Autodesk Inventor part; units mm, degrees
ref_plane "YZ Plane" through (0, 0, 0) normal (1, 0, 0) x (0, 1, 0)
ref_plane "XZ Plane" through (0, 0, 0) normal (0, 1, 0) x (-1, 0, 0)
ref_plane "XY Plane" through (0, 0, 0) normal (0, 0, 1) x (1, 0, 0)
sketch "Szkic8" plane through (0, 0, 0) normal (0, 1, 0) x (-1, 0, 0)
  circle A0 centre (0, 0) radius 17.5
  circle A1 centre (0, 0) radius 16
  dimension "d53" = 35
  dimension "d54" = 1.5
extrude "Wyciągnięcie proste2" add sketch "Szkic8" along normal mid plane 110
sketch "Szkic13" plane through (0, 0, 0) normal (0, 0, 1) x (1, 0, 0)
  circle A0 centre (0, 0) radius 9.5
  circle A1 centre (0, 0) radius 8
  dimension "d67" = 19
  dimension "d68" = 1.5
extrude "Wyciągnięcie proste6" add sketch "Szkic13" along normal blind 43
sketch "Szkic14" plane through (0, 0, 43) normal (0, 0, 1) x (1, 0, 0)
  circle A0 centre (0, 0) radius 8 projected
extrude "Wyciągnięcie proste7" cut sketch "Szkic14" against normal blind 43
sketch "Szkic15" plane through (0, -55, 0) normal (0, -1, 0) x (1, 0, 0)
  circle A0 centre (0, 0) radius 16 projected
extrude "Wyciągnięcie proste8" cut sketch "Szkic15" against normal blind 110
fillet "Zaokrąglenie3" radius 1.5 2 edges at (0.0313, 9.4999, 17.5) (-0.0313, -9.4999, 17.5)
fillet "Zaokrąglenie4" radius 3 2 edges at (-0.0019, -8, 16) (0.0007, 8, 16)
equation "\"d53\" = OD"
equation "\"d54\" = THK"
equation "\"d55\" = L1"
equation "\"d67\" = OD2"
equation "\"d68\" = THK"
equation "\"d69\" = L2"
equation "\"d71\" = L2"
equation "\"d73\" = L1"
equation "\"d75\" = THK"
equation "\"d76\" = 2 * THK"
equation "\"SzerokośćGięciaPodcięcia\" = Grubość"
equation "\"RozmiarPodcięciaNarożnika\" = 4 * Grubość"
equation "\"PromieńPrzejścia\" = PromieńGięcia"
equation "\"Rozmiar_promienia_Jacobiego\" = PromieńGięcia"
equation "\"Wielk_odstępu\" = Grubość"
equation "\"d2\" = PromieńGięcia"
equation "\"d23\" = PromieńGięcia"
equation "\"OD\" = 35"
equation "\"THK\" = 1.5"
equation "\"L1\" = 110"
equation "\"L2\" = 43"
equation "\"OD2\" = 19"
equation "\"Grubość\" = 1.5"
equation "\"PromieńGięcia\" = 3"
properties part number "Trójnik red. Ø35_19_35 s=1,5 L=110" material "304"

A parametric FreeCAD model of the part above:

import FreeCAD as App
import Part
import Sketcher

V = App.Vector
Q = App.Units.Quantity


def edges_at(feature, points):
    """Names of the edges that pass closest to the given points."""
    edges = feature.Shape.Edges
    near = lambda p: min(range(len(edges)), key=lambda i: edges[i].distToShape(Part.Vertex(*p))[0])
    return sorted({f"Edge{near(p) + 1}" for p in points})

doc = App.newDocument("Part")
params = doc.addObject("Spreadsheet::Sheet", "Params")
for row, (alias, value) in enumerate([
    ("sketch1_diameter", "35 mm"),
    ("sketch1_diameter2", "32 mm"),
    ("pad1_length", "110 mm"),
    ("sketch2_diameter", "19 mm"),
    ("sketch2_diameter2", "16 mm"),
    ("pad2_length", "43 mm"),
    ("sketch3_diameter", "16 mm"),
    ("pocket1_length", "43 mm"),
    ("sketch4_diameter", "32 mm"),
    ("pocket2_length", "110 mm"),
    ("fillet_radius", "1.5 mm"),
    ("fillet2_radius", "3 mm"),
], start=1):
    params.set(f"A{row}", alias)
    params.set(f"B{row}", "=" + value)
    params.setAlias(f"B{row}", alias)

body = doc.addObject("PartDesign::Body", "Body")

sketch1 = body.newObject("Sketcher::SketchObject", "Sketch")
sketch1.AttachmentSupport = (doc.getObject("XZ_Plane"), [""])
sketch1.MapMode = "FlatFace"
sketch1.addGeometry([
    Part.Circle(V(0, 0, 0), V(0, 0, 1), 18),
    Part.Circle(V(0, 0, 0), V(0, 0, 1), 16),
], False)
sketch1.addConstraint([
    Sketcher.Constraint("Coincident", 0, 3, -1, 1),
    Sketcher.Constraint("Coincident", 1, 3, -1, 1),
    Sketcher.Constraint("Diameter", 0, Q("35 mm")),
    Sketcher.Constraint("Diameter", 1, Q("32 mm")),
])
sketch1.setExpression("Constraints[2]", "Params.sketch1_diameter")
sketch1.setExpression("Constraints[3]", "Params.sketch1_diameter2")
pad1 = body.newObject("PartDesign::Pad", "Pad")
pad1.Profile = sketch1
pad1.setExpression("Length", "Params.pad1_length")
pad1.Midplane = True

sketch2 = body.newObject("Sketcher::SketchObject", "Sketch001")
sketch2.AttachmentSupport = (doc.getObject("XY_Plane"), [""])
sketch2.MapMode = "FlatFace"
sketch2.addGeometry([
    Part.Circle(V(0, 0, 0), V(0, 0, 1), 10),
    Part.Circle(V(0, 0, 0), V(0, 0, 1), 8),
], False)
sketch2.addConstraint([
    Sketcher.Constraint("Coincident", 0, 3, -1, 1),
    Sketcher.Constraint("Coincident", 1, 3, -1, 1),
    Sketcher.Constraint("Diameter", 0, Q("19 mm")),
    Sketcher.Constraint("Diameter", 1, Q("16 mm")),
])
sketch2.setExpression("Constraints[2]", "Params.sketch2_diameter")
sketch2.setExpression("Constraints[3]", "Params.sketch2_diameter2")
pad2 = body.newObject("PartDesign::Pad", "Pad001")
pad2.Profile = sketch2
pad2.setExpression("Length", "Params.pad2_length")

sketch3 = body.newObject("Sketcher::SketchObject", "Sketch002")
sketch3.AttachmentSupport = (doc.getObject("XY_Plane"), [""])
sketch3.MapMode = "FlatFace"
sketch3.AttachmentOffset = App.Placement(V(0, 0, 43), App.Rotation())
sketch3.addGeometry(Part.Circle(V(0, 0, 0), V(0, 0, 1), 8), False)
sketch3.addConstraint([
    Sketcher.Constraint("Coincident", 0, 3, -1, 1),
    Sketcher.Constraint("Diameter", 0, Q("16 mm")),
])
sketch3.setExpression("Constraints[1]", "Params.sketch3_diameter")
pocket1 = body.newObject("PartDesign::Pocket", "Pocket")
pocket1.Profile = sketch3
pocket1.setExpression("Length", "Params.pocket1_length")

sketch4 = body.newObject("Sketcher::SketchObject", "Sketch003")
sketch4.AttachmentSupport = (doc.getObject("XZ_Plane"), [""])
sketch4.MapMode = "FlatFace"
sketch4.AttachmentOffset = App.Placement(V(0, 0, 55), App.Rotation())
sketch4.addGeometry(Part.Circle(V(0, 0, 0), V(0, 0, 1), 16), False)
sketch4.addConstraint([
    Sketcher.Constraint("Coincident", 0, 3, -1, 1),
    Sketcher.Constraint("Diameter", 0, Q("32 mm")),
])
sketch4.setExpression("Constraints[1]", "Params.sketch4_diameter")
pocket2 = body.newObject("PartDesign::Pocket", "Pocket001")
pocket2.Profile = sketch4
pocket2.setExpression("Length", "Params.pocket2_length")
doc.recompute()

fillet = body.newObject("PartDesign::Fillet", "Fillet")
fillet.Base = (pocket2, edges_at(pocket2, [(0.031, 9.5, 17.5), (-0.031, -9.5, 17.5)]))
fillet.setExpression("Radius", "Params.fillet_radius")
doc.recompute()

fillet2 = body.newObject("PartDesign::Fillet", "Fillet001")
fillet2.Base = (fillet, edges_at(fillet, [(-0.002, -8, 16), (0.001, 8, 16)]))
fillet2.setExpression("Radius", "Params.fillet2_radius")

doc.recompute()
